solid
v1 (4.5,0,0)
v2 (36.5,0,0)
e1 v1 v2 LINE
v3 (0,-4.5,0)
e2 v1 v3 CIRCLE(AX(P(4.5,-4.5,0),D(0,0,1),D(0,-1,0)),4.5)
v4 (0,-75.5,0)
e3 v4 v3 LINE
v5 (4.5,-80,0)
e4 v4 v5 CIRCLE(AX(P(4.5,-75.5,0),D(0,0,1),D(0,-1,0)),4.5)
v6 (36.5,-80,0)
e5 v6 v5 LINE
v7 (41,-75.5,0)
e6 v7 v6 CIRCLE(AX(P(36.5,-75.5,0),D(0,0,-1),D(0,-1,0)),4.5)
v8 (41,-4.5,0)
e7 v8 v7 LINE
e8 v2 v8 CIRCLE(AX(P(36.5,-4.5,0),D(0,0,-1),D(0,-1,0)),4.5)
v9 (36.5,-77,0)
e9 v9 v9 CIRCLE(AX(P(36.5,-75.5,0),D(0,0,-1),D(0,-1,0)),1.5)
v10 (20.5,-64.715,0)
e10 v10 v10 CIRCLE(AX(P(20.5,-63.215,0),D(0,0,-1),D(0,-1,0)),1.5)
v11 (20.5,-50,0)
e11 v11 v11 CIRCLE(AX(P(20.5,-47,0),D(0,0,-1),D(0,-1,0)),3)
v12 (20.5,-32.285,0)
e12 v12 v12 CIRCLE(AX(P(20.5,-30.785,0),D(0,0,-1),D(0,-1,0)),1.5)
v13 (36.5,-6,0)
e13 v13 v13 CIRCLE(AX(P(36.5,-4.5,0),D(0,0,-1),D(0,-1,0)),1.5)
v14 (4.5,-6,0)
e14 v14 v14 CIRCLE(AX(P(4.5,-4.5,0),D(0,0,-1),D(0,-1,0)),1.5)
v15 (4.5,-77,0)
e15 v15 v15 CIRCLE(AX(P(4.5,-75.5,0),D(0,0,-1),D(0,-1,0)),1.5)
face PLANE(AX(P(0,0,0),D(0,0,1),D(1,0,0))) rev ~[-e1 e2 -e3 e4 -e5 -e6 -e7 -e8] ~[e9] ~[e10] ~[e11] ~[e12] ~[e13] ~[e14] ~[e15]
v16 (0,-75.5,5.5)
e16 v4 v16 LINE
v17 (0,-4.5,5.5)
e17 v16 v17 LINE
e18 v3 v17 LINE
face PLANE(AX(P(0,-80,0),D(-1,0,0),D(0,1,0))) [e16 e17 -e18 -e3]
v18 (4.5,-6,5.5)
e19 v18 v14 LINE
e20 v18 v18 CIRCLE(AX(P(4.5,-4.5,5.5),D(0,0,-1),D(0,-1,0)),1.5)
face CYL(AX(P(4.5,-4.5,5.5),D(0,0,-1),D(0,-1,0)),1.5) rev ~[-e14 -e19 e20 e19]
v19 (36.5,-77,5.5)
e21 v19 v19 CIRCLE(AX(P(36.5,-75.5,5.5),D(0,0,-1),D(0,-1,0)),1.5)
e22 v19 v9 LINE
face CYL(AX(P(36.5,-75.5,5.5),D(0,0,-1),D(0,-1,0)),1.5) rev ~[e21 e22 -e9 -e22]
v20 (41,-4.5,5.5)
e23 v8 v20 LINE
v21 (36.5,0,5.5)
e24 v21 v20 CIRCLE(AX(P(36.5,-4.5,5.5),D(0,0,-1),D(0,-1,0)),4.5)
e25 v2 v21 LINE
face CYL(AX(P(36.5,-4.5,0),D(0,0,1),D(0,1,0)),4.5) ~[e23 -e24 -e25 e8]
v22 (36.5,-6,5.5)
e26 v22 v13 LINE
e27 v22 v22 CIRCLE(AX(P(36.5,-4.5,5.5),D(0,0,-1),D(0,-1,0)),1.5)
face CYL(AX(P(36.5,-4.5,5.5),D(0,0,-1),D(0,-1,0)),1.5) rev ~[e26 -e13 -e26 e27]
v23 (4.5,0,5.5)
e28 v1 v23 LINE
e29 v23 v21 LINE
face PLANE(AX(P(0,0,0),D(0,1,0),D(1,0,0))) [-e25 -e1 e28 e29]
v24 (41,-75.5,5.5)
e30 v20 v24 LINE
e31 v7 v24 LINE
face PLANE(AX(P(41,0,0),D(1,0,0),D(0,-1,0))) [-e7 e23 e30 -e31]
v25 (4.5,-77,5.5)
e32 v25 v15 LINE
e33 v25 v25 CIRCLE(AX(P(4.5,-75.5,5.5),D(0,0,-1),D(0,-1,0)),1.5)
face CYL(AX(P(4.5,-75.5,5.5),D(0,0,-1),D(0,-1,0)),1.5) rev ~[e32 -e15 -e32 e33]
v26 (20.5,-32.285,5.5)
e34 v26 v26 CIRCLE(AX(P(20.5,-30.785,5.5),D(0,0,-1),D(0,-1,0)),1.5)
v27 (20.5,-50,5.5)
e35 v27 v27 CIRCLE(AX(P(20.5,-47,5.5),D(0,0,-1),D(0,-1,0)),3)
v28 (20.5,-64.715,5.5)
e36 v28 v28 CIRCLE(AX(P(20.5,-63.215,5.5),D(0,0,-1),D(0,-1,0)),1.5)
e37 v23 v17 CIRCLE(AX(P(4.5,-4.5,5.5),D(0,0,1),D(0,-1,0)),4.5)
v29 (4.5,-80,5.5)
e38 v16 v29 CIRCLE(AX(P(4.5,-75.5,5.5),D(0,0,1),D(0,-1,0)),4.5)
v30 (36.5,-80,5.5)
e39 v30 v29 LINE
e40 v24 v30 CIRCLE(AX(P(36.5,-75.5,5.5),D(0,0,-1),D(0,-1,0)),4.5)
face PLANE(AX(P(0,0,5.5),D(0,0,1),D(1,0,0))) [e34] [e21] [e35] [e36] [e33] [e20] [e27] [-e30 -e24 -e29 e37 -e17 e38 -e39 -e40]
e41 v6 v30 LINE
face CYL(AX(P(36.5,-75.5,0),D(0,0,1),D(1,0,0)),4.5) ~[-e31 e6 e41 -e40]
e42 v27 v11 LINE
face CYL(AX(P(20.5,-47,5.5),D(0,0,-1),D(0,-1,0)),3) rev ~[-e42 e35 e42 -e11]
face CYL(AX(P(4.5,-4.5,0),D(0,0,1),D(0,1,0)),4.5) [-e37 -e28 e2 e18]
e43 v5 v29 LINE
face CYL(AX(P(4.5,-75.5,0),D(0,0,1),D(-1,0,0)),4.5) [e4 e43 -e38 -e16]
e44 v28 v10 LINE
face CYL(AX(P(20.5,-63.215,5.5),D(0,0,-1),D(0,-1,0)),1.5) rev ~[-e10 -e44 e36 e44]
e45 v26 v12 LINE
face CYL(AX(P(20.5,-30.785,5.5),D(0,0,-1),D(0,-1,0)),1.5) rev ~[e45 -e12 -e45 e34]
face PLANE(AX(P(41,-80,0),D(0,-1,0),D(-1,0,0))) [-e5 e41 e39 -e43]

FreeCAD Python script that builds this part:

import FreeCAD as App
import Part
import Sketcher
from FreeCAD import Vector


def edges_at(feature, points):
    """Names of the edges that pass closest to the given points."""
    edges = feature.Shape.Edges
    near = lambda p: min(range(len(edges)), key=lambda i: edges[i].distToShape(Part.Vertex(*p))[0])
    return sorted({f"Edge{near(p) + 1}" for p in points})


def add_polygon(sketch, points):
    """Adds a closed chain of lines whose ends are joined by coincident constraints."""
    first, n = sketch.GeometryCount, len(points)
    for a, b in zip(points, points[1:] + points[:1]):
        sketch.addGeometry(Part.LineSegment(App.Vector(*a, 0), App.Vector(*b, 0)), False)
    for i in range(n):
        sketch.addConstraint(Sketcher.Constraint("Coincident", first + i, 2, first + (i + 1) % n, 1))

doc = App.newDocument("Part")
body = doc.addObject("PartDesign::Body", "Body")

sketch1 = body.newObject("Sketcher::SketchObject", "Sketch")
sketch1.AttachmentSupport = (doc.getObject("XY_Plane"), [""])
sketch1.MapMode = "FlatFace"
add_polygon(sketch1, [(41, 0), (0, 0), (0, -80), (41, -80)])
sketch1.addConstraint(Sketcher.Constraint("Horizontal", 0))
sketch1.addConstraint(Sketcher.Constraint("Vertical", 1))
sketch1.addConstraint(Sketcher.Constraint("Horizontal", 2))
sketch1.addConstraint(Sketcher.Constraint("Vertical", 3))
sketch1.addConstraint(Sketcher.Constraint("Coincident", 0, 2, -1, 1))
sketch1.addConstraint(Sketcher.Constraint("DistanceX", 0, 2, 0, 1, 41.0))
sketch1.addConstraint(Sketcher.Constraint("DistanceY", 1, 2, 1, 1, 80.0))
pad1 = body.newObject("PartDesign::Pad", "Pad")
pad1.Profile = sketch1
pad1.Length = 5.5

sketch2 = body.newObject("Sketcher::SketchObject", "Sketch001")
sketch2.AttachmentSupport = (doc.getObject("XY_Plane"), [""])
sketch2.MapMode = "FlatFace"
sketch2.AttachmentOffset = App.Placement(Vector(0, 0, 5.5), App.Rotation())
sketch2.addGeometry(Part.Circle(Vector(4.5, -4.5, 0), Vector(0, 0, 1), 1.5), False)
sketch2.addGeometry(Part.Circle(Vector(36.5, -4.5, 0), Vector(0, 0, 1), 1.5), False)
sketch2.addGeometry(Part.Circle(Vector(36.5, -75.5, 0), Vector(0, 0, 1), 1.5), False)
sketch2.addGeometry(Part.Circle(Vector(4.5, -75.5, 0), Vector(0, 0, 1), 1.5), False)
sketch2.addConstraint(Sketcher.Constraint("Equal", 0, 1))
sketch2.addConstraint(Sketcher.Constraint("Equal", 1, 2))
sketch2.addConstraint(Sketcher.Constraint("Equal", 2, 3))
sketch2.addConstraint(Sketcher.Constraint("Horizontal", 0, 3, 1, 3))
sketch2.addConstraint(Sketcher.Constraint("Horizontal", 2, 3, 3, 3))
sketch2.addConstraint(Sketcher.Constraint("Vertical", 1, 3, 2, 3))
sketch2.addConstraint(Sketcher.Constraint("Vertical", 0, 3, 3, 3))
sketch2.addConstraint(Sketcher.Constraint("Diameter", 0, 3.0))
sketch2.addConstraint(Sketcher.Constraint("DistanceX", 0, 3, 1, 3, 32.0))
sketch2.addConstraint(Sketcher.Constraint("DistanceY", 2, 3, 1, 3, 71.0))
sketch2.addConstraint(Sketcher.Constraint("DistanceX", -1, 1, 0, 3, 4.5))
sketch2.addConstraint(Sketcher.Constraint("DistanceY", 0, 3, -1, 1, 4.5))
doc.recompute()
hole = body.newObject("PartDesign::Hole", "Hole")
hole.Profile = sketch2
hole.ThreadType = "None"
hole.Diameter = 3
hole.DepthType = "ThroughAll"
doc.recompute()

fillet = body.newObject("PartDesign::Fillet", "Fillet")
fillet.Base = (hole, edges_at(hole, [
    (0, 0, 2.75),
    (41, 0, 2.75),
    (0, -80, 2.75),
    (41, -80, 2.75),
]))
fillet.Radius = 4.5

sketch3 = body.newObject("Sketcher::SketchObject", "Sketch002")
sketch3.AttachmentSupport = (doc.getObject("XY_Plane"), [""])
sketch3.MapMode = "FlatFace"
sketch3.AttachmentOffset = App.Placement(Vector(0, 0, 5.5), App.Rotation())
sketch3.addGeometry(Part.Circle(Vector(20.5, -47, 0), Vector(0, 0, 1), 3), False)
sketch3.addConstraint(Sketcher.Constraint("Diameter", 0, 6.0))
sketch3.addConstraint(Sketcher.Constraint("DistanceY", 0, 3, -1, 1, 47.0))
sketch3.addConstraint(Sketcher.Constraint("DistanceX", -1, 1, 0, 3, 20.5))
doc.recompute()
hole2 = body.newObject("PartDesign::Hole", "Hole001")
hole2.Profile = sketch3
hole2.ThreadType = "None"
hole2.Diameter = 6
hole2.DepthType = "ThroughAll"

sketch4 = body.newObject("Sketcher::SketchObject", "Sketch003")
sketch4.AttachmentSupport = (doc.getObject("XY_Plane"), [""])
sketch4.MapMode = "FlatFace"
sketch4.AttachmentOffset = App.Placement(Vector(0, 0, 5.5), App.Rotation())
sketch4.addGeometry(Part.Circle(Vector(20.5, -30.8, 0), Vector(0, 0, 1), 1.5), False)
sketch4.addGeometry(Part.Circle(Vector(20.5, -63.2, 0), Vector(0, 0, 1), 1.5), False)
sketch4.addConstraint(Sketcher.Constraint("Equal", 0, 1))
sketch4.addConstraint(Sketcher.Constraint("Vertical", 0, 3, 1, 3))
sketch4.addConstraint(Sketcher.Constraint("Diameter", 0, 3.0))
sketch4.addConstraint(Sketcher.Constraint("DistanceX", -1, 1, 0, 3, 20.5))
sketch4.addConstraint(Sketcher.Constraint("DistanceY", 1, 3, 0, 3, 32.43))
sketch4.addConstraint(Sketcher.Constraint("DistanceY", 0, 3, -1, 1, 30.785))
doc.recompute()
hole3 = body.newObject("PartDesign::Hole", "Hole002")
hole3.Profile = sketch4
hole3.ThreadType = "None"
hole3.Diameter = 3
hole3.DepthType = "ThroughAll"

doc.recompute()
